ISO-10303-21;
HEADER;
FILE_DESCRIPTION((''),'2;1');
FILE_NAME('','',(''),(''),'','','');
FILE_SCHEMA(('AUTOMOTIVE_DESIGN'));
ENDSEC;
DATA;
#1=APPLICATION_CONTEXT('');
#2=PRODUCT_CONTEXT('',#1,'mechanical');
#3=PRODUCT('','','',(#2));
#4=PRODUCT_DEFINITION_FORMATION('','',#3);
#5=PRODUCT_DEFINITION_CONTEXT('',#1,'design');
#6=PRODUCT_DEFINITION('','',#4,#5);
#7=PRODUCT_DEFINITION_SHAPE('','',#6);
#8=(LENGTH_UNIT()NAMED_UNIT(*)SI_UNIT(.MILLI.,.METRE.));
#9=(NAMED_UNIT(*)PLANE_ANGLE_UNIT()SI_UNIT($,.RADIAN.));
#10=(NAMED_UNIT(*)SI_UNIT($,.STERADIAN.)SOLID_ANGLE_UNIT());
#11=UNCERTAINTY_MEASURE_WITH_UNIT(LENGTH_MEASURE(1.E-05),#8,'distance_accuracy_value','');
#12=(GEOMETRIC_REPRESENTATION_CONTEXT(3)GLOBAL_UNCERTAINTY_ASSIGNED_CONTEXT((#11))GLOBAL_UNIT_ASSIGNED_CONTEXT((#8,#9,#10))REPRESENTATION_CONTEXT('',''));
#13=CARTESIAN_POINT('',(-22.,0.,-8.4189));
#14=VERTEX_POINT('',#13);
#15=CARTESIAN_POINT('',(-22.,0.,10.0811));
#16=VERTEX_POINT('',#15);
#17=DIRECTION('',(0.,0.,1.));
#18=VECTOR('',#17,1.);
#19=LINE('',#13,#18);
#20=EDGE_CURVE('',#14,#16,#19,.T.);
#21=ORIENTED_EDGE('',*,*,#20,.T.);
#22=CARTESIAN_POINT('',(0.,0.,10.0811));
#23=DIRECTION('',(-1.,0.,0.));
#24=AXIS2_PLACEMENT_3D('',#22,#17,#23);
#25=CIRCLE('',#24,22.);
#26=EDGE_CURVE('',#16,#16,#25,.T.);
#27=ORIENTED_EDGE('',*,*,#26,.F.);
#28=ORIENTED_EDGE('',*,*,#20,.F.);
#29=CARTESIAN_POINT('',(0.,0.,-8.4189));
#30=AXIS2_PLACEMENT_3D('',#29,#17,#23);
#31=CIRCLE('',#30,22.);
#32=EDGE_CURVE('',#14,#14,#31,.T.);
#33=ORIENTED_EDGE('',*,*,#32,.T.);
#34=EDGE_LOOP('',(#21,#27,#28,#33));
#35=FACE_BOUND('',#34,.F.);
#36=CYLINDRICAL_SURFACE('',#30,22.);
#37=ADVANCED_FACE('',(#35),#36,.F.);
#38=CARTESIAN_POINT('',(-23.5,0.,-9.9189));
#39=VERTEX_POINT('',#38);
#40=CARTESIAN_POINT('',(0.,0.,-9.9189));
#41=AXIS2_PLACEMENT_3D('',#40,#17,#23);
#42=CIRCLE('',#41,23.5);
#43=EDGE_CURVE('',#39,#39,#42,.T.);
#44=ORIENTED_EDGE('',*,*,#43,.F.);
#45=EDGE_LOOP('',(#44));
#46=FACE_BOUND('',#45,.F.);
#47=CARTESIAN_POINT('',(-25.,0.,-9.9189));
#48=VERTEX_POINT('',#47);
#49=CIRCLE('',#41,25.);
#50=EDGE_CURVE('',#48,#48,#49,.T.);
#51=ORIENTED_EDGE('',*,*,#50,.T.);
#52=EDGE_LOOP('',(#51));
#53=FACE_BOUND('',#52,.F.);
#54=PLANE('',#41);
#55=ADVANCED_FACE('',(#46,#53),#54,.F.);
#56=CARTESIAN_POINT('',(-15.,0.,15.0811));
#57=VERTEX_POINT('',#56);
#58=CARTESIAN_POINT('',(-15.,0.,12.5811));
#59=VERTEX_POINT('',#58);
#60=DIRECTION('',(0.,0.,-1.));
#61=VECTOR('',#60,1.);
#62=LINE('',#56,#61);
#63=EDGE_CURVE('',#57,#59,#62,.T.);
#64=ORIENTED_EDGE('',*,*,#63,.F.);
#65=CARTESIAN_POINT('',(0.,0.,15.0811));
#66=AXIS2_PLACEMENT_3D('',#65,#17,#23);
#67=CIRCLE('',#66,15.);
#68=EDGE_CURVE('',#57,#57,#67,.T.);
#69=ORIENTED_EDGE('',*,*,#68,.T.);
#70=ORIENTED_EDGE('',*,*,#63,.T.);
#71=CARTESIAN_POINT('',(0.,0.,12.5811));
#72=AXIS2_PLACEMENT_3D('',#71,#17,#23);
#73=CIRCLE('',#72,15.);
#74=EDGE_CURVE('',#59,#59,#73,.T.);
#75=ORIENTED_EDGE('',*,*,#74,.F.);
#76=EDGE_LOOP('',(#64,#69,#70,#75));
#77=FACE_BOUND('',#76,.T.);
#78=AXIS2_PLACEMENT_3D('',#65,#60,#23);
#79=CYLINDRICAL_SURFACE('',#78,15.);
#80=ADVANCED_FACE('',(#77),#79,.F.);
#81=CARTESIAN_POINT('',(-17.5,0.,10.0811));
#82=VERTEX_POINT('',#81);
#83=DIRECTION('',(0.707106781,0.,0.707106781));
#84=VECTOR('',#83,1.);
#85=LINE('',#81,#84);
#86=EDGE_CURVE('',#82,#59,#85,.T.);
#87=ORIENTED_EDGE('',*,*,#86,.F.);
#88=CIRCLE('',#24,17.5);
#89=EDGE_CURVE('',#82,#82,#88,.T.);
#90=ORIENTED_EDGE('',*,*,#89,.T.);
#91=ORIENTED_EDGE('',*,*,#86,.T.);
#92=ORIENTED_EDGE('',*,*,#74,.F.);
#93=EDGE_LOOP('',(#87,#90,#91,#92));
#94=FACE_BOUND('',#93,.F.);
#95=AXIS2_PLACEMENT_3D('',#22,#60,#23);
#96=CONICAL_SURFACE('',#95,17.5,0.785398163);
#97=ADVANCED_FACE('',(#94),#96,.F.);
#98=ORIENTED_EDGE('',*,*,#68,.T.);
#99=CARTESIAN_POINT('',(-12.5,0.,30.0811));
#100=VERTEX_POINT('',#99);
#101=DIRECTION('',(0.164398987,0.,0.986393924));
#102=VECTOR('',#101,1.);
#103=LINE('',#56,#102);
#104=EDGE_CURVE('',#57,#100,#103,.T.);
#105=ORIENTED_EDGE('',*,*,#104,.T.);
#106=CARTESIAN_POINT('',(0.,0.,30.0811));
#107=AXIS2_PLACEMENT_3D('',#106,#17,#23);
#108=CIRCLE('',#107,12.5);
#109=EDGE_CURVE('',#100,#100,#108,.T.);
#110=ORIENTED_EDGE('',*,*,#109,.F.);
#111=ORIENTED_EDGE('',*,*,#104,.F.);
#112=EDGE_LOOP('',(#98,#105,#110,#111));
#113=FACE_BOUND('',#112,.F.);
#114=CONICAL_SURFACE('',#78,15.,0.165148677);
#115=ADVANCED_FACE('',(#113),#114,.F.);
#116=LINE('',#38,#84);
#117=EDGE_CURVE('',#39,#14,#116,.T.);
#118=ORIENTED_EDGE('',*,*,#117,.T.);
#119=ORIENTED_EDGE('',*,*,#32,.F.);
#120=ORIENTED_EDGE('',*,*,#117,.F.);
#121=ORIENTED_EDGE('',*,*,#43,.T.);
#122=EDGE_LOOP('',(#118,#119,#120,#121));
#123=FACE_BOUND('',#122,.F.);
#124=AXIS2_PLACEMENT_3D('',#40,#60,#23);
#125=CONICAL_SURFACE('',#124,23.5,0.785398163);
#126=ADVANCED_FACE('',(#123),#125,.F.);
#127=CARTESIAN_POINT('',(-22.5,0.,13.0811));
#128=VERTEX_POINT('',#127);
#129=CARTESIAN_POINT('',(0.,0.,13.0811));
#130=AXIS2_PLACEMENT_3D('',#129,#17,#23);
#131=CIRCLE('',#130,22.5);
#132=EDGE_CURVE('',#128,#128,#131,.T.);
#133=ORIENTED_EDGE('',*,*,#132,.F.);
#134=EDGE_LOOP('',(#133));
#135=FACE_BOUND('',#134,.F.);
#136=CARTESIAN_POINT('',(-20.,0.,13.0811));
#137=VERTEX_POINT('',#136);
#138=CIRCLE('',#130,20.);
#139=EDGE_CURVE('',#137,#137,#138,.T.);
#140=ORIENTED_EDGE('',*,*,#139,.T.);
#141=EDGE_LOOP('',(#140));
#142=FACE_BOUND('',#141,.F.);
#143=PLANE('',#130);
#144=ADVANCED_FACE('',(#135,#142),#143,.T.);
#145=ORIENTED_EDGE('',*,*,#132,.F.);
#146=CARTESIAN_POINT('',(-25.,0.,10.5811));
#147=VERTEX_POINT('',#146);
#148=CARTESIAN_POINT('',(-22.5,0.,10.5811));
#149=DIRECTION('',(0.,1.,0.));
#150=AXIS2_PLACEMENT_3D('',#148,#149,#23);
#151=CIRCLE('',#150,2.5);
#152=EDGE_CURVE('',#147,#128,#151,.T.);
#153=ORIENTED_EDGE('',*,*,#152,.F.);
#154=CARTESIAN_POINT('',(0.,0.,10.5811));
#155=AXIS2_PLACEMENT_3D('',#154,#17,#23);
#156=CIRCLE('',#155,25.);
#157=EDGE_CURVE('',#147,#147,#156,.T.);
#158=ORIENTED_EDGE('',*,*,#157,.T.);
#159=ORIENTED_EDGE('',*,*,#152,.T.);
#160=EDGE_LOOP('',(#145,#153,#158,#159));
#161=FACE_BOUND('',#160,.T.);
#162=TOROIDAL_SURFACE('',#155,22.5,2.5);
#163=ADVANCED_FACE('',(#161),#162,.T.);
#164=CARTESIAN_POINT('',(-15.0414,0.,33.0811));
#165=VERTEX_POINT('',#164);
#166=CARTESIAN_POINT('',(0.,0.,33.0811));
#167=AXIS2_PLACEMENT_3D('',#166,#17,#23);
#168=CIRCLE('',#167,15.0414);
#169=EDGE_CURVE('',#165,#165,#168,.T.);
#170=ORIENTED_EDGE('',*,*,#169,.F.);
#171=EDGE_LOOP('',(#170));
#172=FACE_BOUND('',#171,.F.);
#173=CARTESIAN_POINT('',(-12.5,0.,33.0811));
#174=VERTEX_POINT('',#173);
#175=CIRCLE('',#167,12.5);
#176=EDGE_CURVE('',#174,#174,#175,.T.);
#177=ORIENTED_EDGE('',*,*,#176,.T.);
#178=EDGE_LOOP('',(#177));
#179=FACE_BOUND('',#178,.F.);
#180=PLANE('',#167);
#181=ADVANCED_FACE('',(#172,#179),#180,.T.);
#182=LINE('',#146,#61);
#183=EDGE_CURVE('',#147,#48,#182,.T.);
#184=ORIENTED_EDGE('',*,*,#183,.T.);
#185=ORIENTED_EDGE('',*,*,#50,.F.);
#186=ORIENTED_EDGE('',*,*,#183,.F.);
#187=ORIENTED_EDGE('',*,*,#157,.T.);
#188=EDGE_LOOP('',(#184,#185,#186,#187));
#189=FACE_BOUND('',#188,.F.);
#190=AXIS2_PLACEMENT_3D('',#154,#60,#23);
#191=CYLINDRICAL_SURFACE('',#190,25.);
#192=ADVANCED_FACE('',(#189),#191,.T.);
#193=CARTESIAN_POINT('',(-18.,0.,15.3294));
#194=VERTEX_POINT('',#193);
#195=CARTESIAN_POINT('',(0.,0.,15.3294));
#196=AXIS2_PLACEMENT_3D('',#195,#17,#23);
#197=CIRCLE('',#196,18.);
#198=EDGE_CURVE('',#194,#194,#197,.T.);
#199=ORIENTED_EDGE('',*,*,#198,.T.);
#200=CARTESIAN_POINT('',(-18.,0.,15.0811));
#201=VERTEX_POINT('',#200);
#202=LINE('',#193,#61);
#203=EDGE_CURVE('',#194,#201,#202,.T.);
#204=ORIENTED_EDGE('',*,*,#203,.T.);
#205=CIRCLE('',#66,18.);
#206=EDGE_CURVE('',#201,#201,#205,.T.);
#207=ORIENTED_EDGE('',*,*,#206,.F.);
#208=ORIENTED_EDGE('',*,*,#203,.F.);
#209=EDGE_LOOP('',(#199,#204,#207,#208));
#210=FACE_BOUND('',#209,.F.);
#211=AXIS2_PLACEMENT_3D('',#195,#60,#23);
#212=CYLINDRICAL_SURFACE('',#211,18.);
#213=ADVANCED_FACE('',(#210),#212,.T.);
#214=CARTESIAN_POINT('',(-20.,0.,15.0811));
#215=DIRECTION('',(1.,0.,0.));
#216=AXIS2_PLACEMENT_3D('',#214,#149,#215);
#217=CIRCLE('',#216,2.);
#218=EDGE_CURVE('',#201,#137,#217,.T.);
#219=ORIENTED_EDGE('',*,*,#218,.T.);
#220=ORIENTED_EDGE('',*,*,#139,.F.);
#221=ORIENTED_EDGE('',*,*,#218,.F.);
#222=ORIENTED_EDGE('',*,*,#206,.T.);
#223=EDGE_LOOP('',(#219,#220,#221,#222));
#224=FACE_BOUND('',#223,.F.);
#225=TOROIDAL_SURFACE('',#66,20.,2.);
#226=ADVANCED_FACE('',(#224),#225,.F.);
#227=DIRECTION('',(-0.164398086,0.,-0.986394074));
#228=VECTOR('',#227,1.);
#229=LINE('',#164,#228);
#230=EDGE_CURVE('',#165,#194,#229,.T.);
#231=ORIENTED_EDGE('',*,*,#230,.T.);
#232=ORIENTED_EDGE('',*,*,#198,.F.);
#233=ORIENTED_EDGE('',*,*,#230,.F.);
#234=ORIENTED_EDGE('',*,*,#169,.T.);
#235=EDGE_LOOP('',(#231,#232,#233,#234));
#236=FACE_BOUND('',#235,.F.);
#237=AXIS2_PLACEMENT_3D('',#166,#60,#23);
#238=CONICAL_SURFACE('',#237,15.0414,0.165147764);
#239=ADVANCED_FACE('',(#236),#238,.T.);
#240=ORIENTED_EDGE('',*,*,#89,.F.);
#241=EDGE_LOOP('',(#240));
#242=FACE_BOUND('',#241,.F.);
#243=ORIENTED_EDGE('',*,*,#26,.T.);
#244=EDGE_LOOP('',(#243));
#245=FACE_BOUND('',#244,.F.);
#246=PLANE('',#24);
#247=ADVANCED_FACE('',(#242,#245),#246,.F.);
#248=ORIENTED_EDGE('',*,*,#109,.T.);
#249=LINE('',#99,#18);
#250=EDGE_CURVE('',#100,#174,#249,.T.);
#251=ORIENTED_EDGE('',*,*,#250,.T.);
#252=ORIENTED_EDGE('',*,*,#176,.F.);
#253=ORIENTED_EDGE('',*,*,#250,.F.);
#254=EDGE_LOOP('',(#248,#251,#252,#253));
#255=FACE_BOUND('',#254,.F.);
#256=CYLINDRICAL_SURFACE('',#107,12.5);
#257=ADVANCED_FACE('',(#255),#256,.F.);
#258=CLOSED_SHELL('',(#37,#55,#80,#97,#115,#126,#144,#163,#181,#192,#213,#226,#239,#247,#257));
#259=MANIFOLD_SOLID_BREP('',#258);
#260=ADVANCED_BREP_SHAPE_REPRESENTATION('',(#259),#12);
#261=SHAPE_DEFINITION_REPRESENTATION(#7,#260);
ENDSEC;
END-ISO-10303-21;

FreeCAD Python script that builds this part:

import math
import FreeCAD as App
import Part
import Sketcher
from FreeCAD import Vector

doc = App.newDocument("Part")
params = doc.addObject("Spreadsheet::Sheet", "Params")
for row, (alias, value) in enumerate([
    ("sketch1_radius", "2 mm"),
    ("sketch1_radius2", "2.5 mm"),
    ("sketch1_width", "1.5 mm"),
    ("sketch1_width2", "2.5 mm"),
    ("sketch1_height", "18.5 mm"),
    ("revolution_angle", "360 deg"),
], start=1):
    params.set(f"A{row}", alias)
    params.set(f"B{row}", "=" + value)
    params.setAlias(f"B{row}", alias)

body = doc.addObject("PartDesign::Body", "Body")

# Sketch on XZ plane
sketch1 = body.newObject("Sketcher::SketchObject", "Sketch")
sketch1.AttachmentSupport = (doc.getObject("XZ_Plane"), [""])
sketch1.MapMode = "FlatFace"
sketch1.addGeometry([
    Part.LineSegment(Vector(-22, 10.08, 0), Vector(-22, -8.42, 0)),  # 0
    Part.LineSegment(Vector(-22, -8.42, 0), Vector(-23.5, -9.92, 0)),  # 1
    Part.LineSegment(Vector(-23.5, -9.92, 0), Vector(-25, -9.92, 0)),  # 2
    Part.LineSegment(Vector(-25, -9.92, 0), Vector(-25, 10.58, 0)),  # 3
    Part.ArcOfCircle(Part.Circle(Vector(-22.5, 10.58, 0), Vector(0, 0, 1), 2.5), math.radians(90), math.radians(180)),  # 4
    Part.LineSegment(Vector(-22.5, 13.08, 0), Vector(-20, 13.08, 0)),  # 5
    Part.ArcOfCircle(Part.Circle(Vector(-20, 15.08, 0), Vector(0, 0, 1), 2), math.radians(-90), math.radians(0)),  # 6
    Part.LineSegment(Vector(-18, 15.08, 0), Vector(-18, 15.33, 0)),  # 7
    Part.LineSegment(Vector(-18, 15.33, 0), Vector(-15.04, 33.08, 0)),  # 8
    Part.LineSegment(Vector(-15.04, 33.08, 0), Vector(-12.5, 33.08, 0)),  # 9
    Part.LineSegment(Vector(-12.5, 33.08, 0), Vector(-12.5, 30.08, 0)),  # 10
    Part.LineSegment(Vector(-12.5, 30.08, 0), Vector(-15, 15.08, 0)),  # 11
    Part.LineSegment(Vector(-15, 15.08, 0), Vector(-15, 12.58, 0)),  # 12
    Part.LineSegment(Vector(-15, 12.58, 0), Vector(-17.5, 10.08, 0)),  # 13
    Part.LineSegment(Vector(-17.5, 10.08, 0), Vector(-22, 10.08, 0)),  # 14
], False)
sketch1.addConstraint([
    Sketcher.Constraint("Coincident", 0, 2, 1, 1),
    Sketcher.Constraint("Coincident", 1, 2, 2, 1),
    Sketcher.Constraint("Coincident", 2, 2, 3, 1),
    Sketcher.Constraint("Tangent", 3, 2, 4, 2),
    Sketcher.Constraint("Tangent", 4, 1, 5, 1),
    Sketcher.Constraint("Tangent", 5, 2, 6, 1),
    Sketcher.Constraint("Tangent", 6, 2, 7, 1),
    Sketcher.Constraint("Coincident", 7, 2, 8, 1),
    Sketcher.Constraint("Coincident", 8, 2, 9, 1),
    Sketcher.Constraint("Coincident", 9, 2, 10, 1),
    Sketcher.Constraint("Coincident", 10, 2, 11, 1),
    Sketcher.Constraint("Coincident", 11, 2, 12, 1),
    Sketcher.Constraint("Coincident", 12, 2, 13, 1),
    Sketcher.Constraint("Coincident", 13, 2, 14, 1),
    Sketcher.Constraint("Coincident", 14, 2, 0, 1),
    Sketcher.Constraint("Vertical", 0),
    Sketcher.Constraint("Horizontal", 2),
    Sketcher.Constraint("Vertical", 3),
    Sketcher.Constraint("Horizontal", 5),
    Sketcher.Constraint("Vertical", 7),
    Sketcher.Constraint("Horizontal", 9),
    Sketcher.Constraint("Vertical", 10),
    Sketcher.Constraint("Vertical", 12),
    Sketcher.Constraint("Horizontal", 14),
    Sketcher.Constraint("Parallel", 8, 11),
    Sketcher.Constraint("Parallel", 1, 13),
    Sketcher.Constraint("Horizontal", 6, 2, 11, 2),
    Sketcher.Constraint("Equal", 5, 12),
    Sketcher.Constraint("Radius", 6, 2.0),
    Sketcher.Constraint("Radius", 4, 2.5),
    Sketcher.Constraint("DistanceX", 2, 2, 2, 1, 1.5),
    Sketcher.Constraint("DistanceX", 5, 1, 5, 2, 2.5),
    Sketcher.Constraint("DistanceX", 6, 3, -1, 1, 20.0),
    Sketcher.Constraint("DistanceX", 11, 2, -1, 1, 15.0),
    Sketcher.Constraint("DistanceX", 0, 2, 6, 3, 2.0),
    Sketcher.Constraint("DistanceY", 5, 2, 8, 2, 20.0),
    Sketcher.Constraint("DistanceY", 6, 2, 10, 2, 15.0),
    Sketcher.Constraint("DistanceY", 1, 2, 0, 2, 1.5),
    Sketcher.Constraint("DistanceX", 13, 2, 12, 2, 2.5),
    Sketcher.Constraint("DistanceY", 0, 2, 0, 1, 18.5),
    Sketcher.Constraint("DistanceX", 9, 2, -1, 1, 12.5),
    Sketcher.Constraint("DistanceX", 9, 1, 9, 2, 2.5414),
    Sketcher.Constraint("DistanceY", -1, 1, 4, 3, 10.581),
])
sketch1.setExpression("Constraints[28]", "Params.sketch1_radius")
sketch1.setExpression("Constraints[29]", "Params.sketch1_radius2")
sketch1.setExpression("Constraints[30]", "Params.sketch1_width")
sketch1.setExpression("Constraints[31]", "Params.sketch1_width2")
sketch1.setExpression("Constraints[39]", "Params.sketch1_height")
revolution = body.newObject("PartDesign::Revolution", "Revolution")
revolution.Profile = sketch1
revolution.ReferenceAxis = (sketch1, ["V_Axis"])
revolution.setExpression("Angle", "Params.revolution_angle")

doc.recompute()
